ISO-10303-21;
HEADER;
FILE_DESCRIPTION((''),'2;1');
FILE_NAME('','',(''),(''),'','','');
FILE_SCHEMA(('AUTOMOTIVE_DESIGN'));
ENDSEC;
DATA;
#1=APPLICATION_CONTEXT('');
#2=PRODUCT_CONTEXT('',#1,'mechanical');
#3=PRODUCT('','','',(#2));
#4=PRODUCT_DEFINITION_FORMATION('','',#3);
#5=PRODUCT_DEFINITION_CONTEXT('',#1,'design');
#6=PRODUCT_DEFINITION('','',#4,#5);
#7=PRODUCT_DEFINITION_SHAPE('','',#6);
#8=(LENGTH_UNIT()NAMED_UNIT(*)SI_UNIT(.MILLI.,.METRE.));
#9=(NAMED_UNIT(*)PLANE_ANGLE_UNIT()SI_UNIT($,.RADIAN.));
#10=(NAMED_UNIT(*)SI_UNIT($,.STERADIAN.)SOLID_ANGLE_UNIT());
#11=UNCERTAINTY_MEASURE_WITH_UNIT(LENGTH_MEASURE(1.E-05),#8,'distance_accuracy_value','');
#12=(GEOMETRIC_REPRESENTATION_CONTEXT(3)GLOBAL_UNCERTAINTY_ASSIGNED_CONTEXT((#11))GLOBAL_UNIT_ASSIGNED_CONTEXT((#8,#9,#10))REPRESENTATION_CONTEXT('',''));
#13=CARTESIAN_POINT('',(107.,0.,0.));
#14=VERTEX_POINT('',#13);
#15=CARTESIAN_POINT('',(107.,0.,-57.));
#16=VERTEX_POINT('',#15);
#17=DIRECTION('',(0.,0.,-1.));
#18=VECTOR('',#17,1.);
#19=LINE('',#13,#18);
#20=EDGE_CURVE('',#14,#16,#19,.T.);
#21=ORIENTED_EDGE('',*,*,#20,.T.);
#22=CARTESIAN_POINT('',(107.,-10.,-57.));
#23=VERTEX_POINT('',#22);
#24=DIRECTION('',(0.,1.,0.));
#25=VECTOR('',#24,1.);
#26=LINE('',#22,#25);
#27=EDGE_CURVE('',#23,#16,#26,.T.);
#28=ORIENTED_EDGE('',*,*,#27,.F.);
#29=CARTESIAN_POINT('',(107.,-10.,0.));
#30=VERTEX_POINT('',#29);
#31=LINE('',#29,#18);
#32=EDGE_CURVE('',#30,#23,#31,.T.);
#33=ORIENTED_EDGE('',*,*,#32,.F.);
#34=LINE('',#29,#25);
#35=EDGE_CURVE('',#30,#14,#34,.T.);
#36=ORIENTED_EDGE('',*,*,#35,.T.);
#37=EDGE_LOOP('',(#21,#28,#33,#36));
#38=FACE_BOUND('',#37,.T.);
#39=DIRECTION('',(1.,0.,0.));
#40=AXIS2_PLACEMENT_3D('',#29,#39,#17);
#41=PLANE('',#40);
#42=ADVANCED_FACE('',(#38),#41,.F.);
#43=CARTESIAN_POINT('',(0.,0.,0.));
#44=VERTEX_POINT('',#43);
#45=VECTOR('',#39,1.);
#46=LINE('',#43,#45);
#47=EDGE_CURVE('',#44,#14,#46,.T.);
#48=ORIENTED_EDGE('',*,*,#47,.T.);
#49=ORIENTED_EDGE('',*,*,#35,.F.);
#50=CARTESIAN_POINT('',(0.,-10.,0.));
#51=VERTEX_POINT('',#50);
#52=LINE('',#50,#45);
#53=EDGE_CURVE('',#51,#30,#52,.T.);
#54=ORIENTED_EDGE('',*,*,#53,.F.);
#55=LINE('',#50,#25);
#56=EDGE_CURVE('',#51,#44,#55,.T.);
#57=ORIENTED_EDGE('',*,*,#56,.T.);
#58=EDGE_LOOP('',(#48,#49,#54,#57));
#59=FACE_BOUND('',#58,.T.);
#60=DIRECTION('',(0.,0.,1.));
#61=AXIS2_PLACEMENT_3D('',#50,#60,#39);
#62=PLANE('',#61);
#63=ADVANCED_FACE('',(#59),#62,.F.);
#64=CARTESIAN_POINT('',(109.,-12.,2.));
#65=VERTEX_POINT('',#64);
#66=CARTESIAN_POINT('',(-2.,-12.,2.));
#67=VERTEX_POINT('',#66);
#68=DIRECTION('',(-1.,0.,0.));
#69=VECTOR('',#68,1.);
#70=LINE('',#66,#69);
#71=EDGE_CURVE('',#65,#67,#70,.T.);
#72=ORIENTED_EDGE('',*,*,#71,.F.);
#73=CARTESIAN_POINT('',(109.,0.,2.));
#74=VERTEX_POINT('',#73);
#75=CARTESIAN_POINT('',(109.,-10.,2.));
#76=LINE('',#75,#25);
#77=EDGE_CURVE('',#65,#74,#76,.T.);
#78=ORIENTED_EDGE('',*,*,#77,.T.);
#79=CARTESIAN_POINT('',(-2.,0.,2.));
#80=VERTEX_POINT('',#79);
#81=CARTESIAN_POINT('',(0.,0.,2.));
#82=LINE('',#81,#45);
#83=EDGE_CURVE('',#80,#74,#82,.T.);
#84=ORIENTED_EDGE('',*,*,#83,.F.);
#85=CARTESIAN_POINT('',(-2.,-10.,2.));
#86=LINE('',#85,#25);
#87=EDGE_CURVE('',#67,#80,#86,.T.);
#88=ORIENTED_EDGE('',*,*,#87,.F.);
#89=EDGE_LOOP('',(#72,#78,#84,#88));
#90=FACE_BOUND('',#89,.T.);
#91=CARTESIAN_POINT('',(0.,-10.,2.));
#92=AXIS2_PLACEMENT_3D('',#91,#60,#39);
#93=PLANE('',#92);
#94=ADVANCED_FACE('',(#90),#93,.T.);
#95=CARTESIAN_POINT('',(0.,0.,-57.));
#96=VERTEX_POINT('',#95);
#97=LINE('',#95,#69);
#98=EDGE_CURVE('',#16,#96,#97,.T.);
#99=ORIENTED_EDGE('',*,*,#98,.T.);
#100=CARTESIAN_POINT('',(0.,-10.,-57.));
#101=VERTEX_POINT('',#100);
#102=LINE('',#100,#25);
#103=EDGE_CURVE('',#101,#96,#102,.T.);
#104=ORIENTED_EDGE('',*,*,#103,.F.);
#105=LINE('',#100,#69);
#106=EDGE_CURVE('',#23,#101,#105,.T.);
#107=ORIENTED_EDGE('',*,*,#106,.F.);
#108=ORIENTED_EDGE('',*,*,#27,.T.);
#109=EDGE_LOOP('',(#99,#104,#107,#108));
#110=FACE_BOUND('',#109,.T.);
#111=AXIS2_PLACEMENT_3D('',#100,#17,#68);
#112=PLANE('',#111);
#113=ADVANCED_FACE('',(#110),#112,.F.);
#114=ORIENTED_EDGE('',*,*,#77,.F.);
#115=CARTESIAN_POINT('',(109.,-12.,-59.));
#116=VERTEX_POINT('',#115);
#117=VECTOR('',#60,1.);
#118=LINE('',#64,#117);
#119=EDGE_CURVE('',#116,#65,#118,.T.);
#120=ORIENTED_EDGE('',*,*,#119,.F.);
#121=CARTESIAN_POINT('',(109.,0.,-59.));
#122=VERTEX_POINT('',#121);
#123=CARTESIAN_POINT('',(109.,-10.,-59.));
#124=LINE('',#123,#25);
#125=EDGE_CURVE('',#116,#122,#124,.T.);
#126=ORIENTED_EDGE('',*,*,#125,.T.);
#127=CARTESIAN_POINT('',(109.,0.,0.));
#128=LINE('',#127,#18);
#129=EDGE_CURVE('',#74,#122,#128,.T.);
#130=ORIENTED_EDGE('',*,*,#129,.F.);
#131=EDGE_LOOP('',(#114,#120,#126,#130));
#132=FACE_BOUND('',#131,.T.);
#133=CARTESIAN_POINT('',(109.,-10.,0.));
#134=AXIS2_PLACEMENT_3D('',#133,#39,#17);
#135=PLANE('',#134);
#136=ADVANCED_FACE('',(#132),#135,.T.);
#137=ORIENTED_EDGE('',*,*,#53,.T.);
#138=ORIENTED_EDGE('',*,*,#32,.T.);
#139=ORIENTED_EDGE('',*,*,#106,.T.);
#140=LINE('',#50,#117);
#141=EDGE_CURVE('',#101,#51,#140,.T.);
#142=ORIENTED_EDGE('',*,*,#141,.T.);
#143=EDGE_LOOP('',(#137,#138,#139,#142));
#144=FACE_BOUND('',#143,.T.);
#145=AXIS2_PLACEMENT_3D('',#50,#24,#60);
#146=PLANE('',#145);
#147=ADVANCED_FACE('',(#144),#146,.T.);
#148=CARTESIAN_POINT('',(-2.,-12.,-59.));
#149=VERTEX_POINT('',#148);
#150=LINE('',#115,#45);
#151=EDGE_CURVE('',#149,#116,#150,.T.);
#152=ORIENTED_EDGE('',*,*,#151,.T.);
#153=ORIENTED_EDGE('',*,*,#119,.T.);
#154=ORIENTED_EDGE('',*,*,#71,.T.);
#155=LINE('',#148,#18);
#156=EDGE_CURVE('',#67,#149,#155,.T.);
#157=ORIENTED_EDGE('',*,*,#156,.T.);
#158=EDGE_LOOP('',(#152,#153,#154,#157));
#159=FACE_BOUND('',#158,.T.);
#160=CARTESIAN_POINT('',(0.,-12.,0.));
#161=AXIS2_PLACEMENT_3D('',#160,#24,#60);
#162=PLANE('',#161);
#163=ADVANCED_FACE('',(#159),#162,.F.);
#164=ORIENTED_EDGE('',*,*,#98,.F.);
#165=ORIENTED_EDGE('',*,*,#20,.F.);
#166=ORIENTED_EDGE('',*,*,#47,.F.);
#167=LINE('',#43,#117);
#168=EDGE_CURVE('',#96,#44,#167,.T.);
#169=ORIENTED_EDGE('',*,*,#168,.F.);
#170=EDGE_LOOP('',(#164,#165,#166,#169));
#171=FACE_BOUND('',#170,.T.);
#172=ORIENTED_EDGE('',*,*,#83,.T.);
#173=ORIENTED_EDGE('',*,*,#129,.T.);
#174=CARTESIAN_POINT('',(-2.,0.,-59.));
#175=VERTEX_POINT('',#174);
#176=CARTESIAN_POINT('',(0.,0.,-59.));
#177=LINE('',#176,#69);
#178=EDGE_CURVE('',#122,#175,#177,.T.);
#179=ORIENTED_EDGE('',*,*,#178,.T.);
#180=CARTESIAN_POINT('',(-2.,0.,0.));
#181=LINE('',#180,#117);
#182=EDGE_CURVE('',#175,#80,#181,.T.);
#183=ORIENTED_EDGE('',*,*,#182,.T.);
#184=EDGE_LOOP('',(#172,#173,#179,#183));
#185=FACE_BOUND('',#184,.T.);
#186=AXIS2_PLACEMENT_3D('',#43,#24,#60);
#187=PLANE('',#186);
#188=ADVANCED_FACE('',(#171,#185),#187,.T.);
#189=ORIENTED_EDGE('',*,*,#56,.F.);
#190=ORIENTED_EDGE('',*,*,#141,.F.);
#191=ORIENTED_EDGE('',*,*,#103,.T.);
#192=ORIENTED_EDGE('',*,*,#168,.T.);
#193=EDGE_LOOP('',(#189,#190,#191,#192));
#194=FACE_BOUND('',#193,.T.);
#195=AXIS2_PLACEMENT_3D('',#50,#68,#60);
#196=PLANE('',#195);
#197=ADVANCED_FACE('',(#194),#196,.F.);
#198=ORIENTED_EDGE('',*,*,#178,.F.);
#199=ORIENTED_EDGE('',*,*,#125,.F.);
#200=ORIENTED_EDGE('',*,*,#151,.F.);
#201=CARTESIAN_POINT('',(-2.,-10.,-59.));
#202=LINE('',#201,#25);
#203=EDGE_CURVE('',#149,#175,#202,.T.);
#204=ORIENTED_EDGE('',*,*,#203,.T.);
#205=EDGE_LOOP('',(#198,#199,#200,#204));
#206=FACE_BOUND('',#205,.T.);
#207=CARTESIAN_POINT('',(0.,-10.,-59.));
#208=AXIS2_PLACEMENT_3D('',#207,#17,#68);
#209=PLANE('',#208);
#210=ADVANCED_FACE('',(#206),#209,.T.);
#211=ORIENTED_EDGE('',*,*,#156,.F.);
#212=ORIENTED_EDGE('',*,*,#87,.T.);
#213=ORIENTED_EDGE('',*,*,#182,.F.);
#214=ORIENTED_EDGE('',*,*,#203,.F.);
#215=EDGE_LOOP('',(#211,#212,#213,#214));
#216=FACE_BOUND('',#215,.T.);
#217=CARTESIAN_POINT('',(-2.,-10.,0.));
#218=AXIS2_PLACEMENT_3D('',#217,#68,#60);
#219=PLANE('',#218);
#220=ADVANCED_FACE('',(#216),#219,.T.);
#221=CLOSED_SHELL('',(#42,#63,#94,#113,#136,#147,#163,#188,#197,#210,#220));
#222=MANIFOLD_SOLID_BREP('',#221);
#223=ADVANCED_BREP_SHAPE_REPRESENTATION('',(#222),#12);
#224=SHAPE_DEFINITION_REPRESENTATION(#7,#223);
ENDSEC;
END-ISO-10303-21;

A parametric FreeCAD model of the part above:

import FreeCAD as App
import Part
import Sketcher

V = App.Vector
Q = App.Units.Quantity


def add_polygon(sketch, points):
    """Adds a closed chain of lines whose ends are joined by coincident constraints."""
    first, n = sketch.GeometryCount, len(points)
    for a, b in zip(points, points[1:] + points[:1]):
        sketch.addGeometry(Part.LineSegment(App.Vector(*a, 0), App.Vector(*b, 0)), False)
    for i in range(n):
        sketch.addConstraint(Sketcher.Constraint("Coincident", first + i, 2, first + (i + 1) % n, 1))

doc = App.newDocument("Part")
body = doc.addObject("PartDesign::Body", "Body")

# Sketch on XZ plane
sketch1 = body.newObject("Sketcher::SketchObject", "Sketch")
sketch1.AttachmentSupport = (doc.getObject("XZ_Plane"), [""])
sketch1.MapMode = "FlatFace"
add_polygon(sketch1, [(-2, -59), (-2, 2), (109, 2), (109, -59)])  # lines 0-3
add_polygon(sketch1, [(107, 0), (0, 0), (0, -57), (107, -57)])  # lines 4-7
sketch1.addConstraint([
    Sketcher.Constraint("Vertical", 0),
    Sketcher.Constraint("Horizontal", 1),
    Sketcher.Constraint("Vertical", 2),
    Sketcher.Constraint("Horizontal", 3),
    Sketcher.Constraint("Horizontal", 4),
    Sketcher.Constraint("Vertical", 5),
    Sketcher.Constraint("Horizontal", 6),
    Sketcher.Constraint("Vertical", 7),
    Sketcher.Constraint("Coincident", 4, 2, -1, 1),
    Sketcher.Constraint("DistanceX", 1, 1, 1, 2, Q("111 mm")),
    Sketcher.Constraint("DistanceX", 4, 2, 4, 1, Q("107 mm")),
    Sketcher.Constraint("DistanceY", 0, 1, 0, 2, Q("61 mm")),
    Sketcher.Constraint("DistanceY", 5, 2, 5, 1, Q("57 mm")),
    Sketcher.Constraint("DistanceX", 0, 2, -1, 1, Q("2 mm")),
    Sketcher.Constraint("DistanceY", -1, 1, 0, 2, Q("2 mm")),
])
pad1 = body.newObject("PartDesign::Pad", "Pad")
pad1.Profile = sketch1
pad1.Length = 10

# Sketch on XZ plane
sketch2 = body.newObject("Sketcher::SketchObject", "Sketch001")
sketch2.AttachmentSupport = (doc.getObject("XZ_Plane"), [""])
sketch2.MapMode = "FlatFace"
sketch2.AttachmentOffset = App.Placement(V(0, 0, 10), App.Rotation())
add_polygon(sketch2, [(109, -59), (109, 2), (-2, 2), (-2, -59)])  # lines 0-3
sketch2.addConstraint([
    Sketcher.Constraint("Vertical", 0),
    Sketcher.Constraint("Horizontal", 1),
    Sketcher.Constraint("Vertical", 2),
    Sketcher.Constraint("Horizontal", 3),
    Sketcher.Constraint("DistanceX", 1, 2, 1, 1, Q("111 mm")),
    Sketcher.Constraint("DistanceY", 0, 1, 0, 2, Q("61 mm")),
    Sketcher.Constraint("DistanceX", -1, 1, 0, 2, Q("109 mm")),
    Sketcher.Constraint("DistanceY", -1, 1, 0, 2, Q("2 mm")),
])
pad2 = body.newObject("PartDesign::Pad", "Pad001")
pad2.Profile = sketch2
pad2.Length = 2

doc.recompute()
